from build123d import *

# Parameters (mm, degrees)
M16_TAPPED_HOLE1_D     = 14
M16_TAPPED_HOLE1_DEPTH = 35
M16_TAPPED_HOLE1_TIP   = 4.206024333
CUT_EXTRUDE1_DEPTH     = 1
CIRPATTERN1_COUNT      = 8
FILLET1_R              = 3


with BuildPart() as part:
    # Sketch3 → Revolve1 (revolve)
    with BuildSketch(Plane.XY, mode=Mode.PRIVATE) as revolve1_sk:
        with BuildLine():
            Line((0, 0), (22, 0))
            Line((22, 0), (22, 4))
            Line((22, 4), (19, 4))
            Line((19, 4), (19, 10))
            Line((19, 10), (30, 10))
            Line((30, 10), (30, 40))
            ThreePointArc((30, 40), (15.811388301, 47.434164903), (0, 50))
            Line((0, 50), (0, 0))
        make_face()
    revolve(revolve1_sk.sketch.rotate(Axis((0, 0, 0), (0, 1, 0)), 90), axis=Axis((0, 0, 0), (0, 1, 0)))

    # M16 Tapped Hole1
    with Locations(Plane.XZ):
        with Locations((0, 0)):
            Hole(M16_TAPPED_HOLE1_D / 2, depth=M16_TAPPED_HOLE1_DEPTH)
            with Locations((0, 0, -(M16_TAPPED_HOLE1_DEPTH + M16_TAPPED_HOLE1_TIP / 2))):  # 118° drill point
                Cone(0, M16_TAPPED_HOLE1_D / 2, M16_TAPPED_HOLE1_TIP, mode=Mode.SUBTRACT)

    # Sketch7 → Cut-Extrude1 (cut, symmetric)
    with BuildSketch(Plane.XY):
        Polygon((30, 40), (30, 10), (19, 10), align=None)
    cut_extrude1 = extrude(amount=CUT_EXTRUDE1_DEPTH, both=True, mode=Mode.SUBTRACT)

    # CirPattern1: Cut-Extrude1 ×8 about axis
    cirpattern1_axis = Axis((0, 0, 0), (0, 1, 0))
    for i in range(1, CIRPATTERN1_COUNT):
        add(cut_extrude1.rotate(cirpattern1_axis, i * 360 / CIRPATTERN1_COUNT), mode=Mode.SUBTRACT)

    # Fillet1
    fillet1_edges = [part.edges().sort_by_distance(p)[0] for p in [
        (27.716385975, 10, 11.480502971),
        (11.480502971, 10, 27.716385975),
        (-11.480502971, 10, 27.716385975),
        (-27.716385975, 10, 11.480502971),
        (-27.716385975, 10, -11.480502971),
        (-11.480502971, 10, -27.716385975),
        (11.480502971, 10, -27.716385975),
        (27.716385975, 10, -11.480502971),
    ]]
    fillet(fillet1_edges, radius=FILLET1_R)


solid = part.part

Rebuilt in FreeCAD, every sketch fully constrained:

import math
import FreeCAD as App
import Part
import Sketcher
from FreeCAD import Vector


def edges_at(feature, points):
    """Names of the edges that pass closest to the given points."""
    edges = feature.Shape.Edges
    near = lambda p: min(range(len(edges)), key=lambda i: edges[i].distToShape(Part.Vertex(*p))[0])
    return sorted({f"Edge{near(p) + 1}" for p in points})

doc = App.newDocument("Part")
body = doc.addObject("PartDesign::Body", "Body")

sketch1 = body.newObject("Sketcher::SketchObject", "Sketch")
sketch1.AttachmentSupport = (doc.getObject("XY_Plane"), [""])
sketch1.MapMode = "FlatFace"
sketch1.addGeometry(Part.LineSegment(Vector(0, 0, 0), Vector(22, 0, 0)), False)
sketch1.addGeometry(Part.LineSegment(Vector(22, 0, 0), Vector(22, 4, 0)), False)
sketch1.addGeometry(Part.LineSegment(Vector(22, 4, 0), Vector(19, 4, 0)), False)
sketch1.addGeometry(Part.LineSegment(Vector(19, 4, 0), Vector(19, 10, 0)), False)
sketch1.addGeometry(Part.LineSegment(Vector(19, 10, 0), Vector(30, 10, 0)), False)
sketch1.addGeometry(Part.LineSegment(Vector(30, 10, 0), Vector(30, 40, 0)), False)
sketch1.addGeometry(Part.ArcOfCircle(Part.Circle(Vector(0, 0, 0), Vector(0, 0, 1), 50), math.radians(53), math.radians(90)), False)
sketch1.addGeometry(Part.LineSegment(Vector(0, 50, 0), Vector(0, 0, 0)), False)
sketch1.addConstraint(Sketcher.Constraint("Coincident", 0, 2, 1, 1))
sketch1.addConstraint(Sketcher.Constraint("Coincident", 1, 2, 2, 1))
sketch1.addConstraint(Sketcher.Constraint("Coincident", 2, 2, 3, 1))
sketch1.addConstraint(Sketcher.Constraint("Coincident", 3, 2, 4, 1))
sketch1.addConstraint(Sketcher.Constraint("Coincident", 4, 2, 5, 1))
sketch1.addConstraint(Sketcher.Constraint("Coincident", 5, 2, 6, 1))
sketch1.addConstraint(Sketcher.Constraint("Coincident", 6, 2, 7, 1))
sketch1.addConstraint(Sketcher.Constraint("Coincident", 7, 2, 0, 1))
sketch1.addConstraint(Sketcher.Constraint("Horizontal", 0))
sketch1.addConstraint(Sketcher.Constraint("Vertical", 1))
sketch1.addConstraint(Sketcher.Constraint("Horizontal", 2))
sketch1.addConstraint(Sketcher.Constraint("Vertical", 3))
sketch1.addConstraint(Sketcher.Constraint("Horizontal", 4))
sketch1.addConstraint(Sketcher.Constraint("Vertical", 5))
sketch1.addConstraint(Sketcher.Constraint("Vertical", 7))
sketch1.addConstraint(Sketcher.Constraint("Coincident", 6, 3, -1, 1))
sketch1.addConstraint(Sketcher.Constraint("Coincident", 7, 2, -1, 1))
sketch1.addConstraint(Sketcher.Constraint("Radius", 6, 50.0))
sketch1.addConstraint(Sketcher.Constraint("DistanceX", 0, 1, 0, 2, 22.0))
sketch1.addConstraint(Sketcher.Constraint("DistanceX", 2, 2, 2, 1, 3.0))
sketch1.addConstraint(Sketcher.Constraint("DistanceX", 4, 1, 4, 2, 11.0))
sketch1.addConstraint(Sketcher.Constraint("DistanceY", 1, 1, 1, 2, 4.0))
sketch1.addConstraint(Sketcher.Constraint("DistanceY", 3, 1, 3, 2, 6.0))
revolution = body.newObject("PartDesign::Revolution", "Revolution")
revolution.Profile = sketch1
revolution.ReferenceAxis = (sketch1, ["V_Axis"])
revolution.Angle = 360

sketch2 = body.newObject("Sketcher::SketchObject", "Sketch001")
sketch2.AttachmentSupport = (doc.getObject("XZ_Plane"), [""])
sketch2.MapMode = "FlatFace"
sketch2.addGeometry(Part.Circle(Vector(0, 0, 0), Vector(0, 0, 1), 7), False)
sketch2.addConstraint(Sketcher.Constraint("Coincident", 0, 3, -1, 1))
sketch2.addConstraint(Sketcher.Constraint("Diameter", 0, 14.0))
doc.recompute()
hole = body.newObject("PartDesign::Hole", "Hole")
hole.Profile = sketch2
hole.ThreadType = "None"
hole.Diameter = 14
hole.DepthType = "Dimension"
hole.Depth = 35
hole.DrillPoint = "Angled"
hole.DrillPointAngle = 118

sketch3 = body.newObject("Sketcher::SketchObject", "Sketch002")
sketch3.AttachmentSupport = (doc.getObject("XY_Plane"), [""])
sketch3.MapMode = "FlatFace"
sketch3.addGeometry(Part.LineSegment(Vector(30, 10, 0), Vector(30, 40, 0)), False)
sketch3.addGeometry(Part.LineSegment(Vector(30, 40, 0), Vector(19, 10, 0)), False)
sketch3.addGeometry(Part.LineSegment(Vector(19, 10, 0), Vector(30, 10, 0)), False)
sketch3.addConstraint(Sketcher.Constraint("Coincident", 0, 2, 1, 1))
sketch3.addConstraint(Sketcher.Constraint("Coincident", 1, 2, 2, 1))
sketch3.addConstraint(Sketcher.Constraint("Coincident", 2, 2, 0, 1))
sketch3.addConstraint(Sketcher.Constraint("Vertical", 0))
sketch3.addConstraint(Sketcher.Constraint("Horizontal", 2))
sketch3.addConstraint(Sketcher.Constraint("DistanceX", 2, 1, 2, 2, 11.0))
sketch3.addConstraint(Sketcher.Constraint("DistanceY", 0, 1, 0, 2, 30.0))
sketch3.addConstraint(Sketcher.Constraint("DistanceX", -1, 1, 0, 2, 30.0))
sketch3.addConstraint(Sketcher.Constraint("DistanceY", -1, 1, 0, 2, 40.0))
pocket1 = body.newObject("PartDesign::Pocket", "Pocket")
pocket1.Profile = sketch3
pocket1.Length = 2
pocket1.Midplane = True
doc.recompute()

polarpattern = body.newObject("PartDesign::PolarPattern", "PolarPattern")
polarpattern.Originals = [pocket1]
polarpattern.Axis = (doc.getObject("Y_Axis"), [""])
polarpattern.Angle = 360
polarpattern.Occurrences = 8
body.Tip = polarpattern
doc.recompute()

fillet = body.newObject("PartDesign::Fillet", "Fillet")
fillet.Base = (polarpattern, edges_at(polarpattern, [
    (27.716, 10, 11.481),
    (11.481, 10, 27.716),
    (-11.481, 10, 27.716),
    (-27.716, 10, 11.481),
    (-27.716, 10, -11.481),
    (-11.481, 10, -27.716),
    (11.481, 10, -27.716),
    (27.716, 10, -11.481),
]))
fillet.Radius = 3

doc.recompute()
